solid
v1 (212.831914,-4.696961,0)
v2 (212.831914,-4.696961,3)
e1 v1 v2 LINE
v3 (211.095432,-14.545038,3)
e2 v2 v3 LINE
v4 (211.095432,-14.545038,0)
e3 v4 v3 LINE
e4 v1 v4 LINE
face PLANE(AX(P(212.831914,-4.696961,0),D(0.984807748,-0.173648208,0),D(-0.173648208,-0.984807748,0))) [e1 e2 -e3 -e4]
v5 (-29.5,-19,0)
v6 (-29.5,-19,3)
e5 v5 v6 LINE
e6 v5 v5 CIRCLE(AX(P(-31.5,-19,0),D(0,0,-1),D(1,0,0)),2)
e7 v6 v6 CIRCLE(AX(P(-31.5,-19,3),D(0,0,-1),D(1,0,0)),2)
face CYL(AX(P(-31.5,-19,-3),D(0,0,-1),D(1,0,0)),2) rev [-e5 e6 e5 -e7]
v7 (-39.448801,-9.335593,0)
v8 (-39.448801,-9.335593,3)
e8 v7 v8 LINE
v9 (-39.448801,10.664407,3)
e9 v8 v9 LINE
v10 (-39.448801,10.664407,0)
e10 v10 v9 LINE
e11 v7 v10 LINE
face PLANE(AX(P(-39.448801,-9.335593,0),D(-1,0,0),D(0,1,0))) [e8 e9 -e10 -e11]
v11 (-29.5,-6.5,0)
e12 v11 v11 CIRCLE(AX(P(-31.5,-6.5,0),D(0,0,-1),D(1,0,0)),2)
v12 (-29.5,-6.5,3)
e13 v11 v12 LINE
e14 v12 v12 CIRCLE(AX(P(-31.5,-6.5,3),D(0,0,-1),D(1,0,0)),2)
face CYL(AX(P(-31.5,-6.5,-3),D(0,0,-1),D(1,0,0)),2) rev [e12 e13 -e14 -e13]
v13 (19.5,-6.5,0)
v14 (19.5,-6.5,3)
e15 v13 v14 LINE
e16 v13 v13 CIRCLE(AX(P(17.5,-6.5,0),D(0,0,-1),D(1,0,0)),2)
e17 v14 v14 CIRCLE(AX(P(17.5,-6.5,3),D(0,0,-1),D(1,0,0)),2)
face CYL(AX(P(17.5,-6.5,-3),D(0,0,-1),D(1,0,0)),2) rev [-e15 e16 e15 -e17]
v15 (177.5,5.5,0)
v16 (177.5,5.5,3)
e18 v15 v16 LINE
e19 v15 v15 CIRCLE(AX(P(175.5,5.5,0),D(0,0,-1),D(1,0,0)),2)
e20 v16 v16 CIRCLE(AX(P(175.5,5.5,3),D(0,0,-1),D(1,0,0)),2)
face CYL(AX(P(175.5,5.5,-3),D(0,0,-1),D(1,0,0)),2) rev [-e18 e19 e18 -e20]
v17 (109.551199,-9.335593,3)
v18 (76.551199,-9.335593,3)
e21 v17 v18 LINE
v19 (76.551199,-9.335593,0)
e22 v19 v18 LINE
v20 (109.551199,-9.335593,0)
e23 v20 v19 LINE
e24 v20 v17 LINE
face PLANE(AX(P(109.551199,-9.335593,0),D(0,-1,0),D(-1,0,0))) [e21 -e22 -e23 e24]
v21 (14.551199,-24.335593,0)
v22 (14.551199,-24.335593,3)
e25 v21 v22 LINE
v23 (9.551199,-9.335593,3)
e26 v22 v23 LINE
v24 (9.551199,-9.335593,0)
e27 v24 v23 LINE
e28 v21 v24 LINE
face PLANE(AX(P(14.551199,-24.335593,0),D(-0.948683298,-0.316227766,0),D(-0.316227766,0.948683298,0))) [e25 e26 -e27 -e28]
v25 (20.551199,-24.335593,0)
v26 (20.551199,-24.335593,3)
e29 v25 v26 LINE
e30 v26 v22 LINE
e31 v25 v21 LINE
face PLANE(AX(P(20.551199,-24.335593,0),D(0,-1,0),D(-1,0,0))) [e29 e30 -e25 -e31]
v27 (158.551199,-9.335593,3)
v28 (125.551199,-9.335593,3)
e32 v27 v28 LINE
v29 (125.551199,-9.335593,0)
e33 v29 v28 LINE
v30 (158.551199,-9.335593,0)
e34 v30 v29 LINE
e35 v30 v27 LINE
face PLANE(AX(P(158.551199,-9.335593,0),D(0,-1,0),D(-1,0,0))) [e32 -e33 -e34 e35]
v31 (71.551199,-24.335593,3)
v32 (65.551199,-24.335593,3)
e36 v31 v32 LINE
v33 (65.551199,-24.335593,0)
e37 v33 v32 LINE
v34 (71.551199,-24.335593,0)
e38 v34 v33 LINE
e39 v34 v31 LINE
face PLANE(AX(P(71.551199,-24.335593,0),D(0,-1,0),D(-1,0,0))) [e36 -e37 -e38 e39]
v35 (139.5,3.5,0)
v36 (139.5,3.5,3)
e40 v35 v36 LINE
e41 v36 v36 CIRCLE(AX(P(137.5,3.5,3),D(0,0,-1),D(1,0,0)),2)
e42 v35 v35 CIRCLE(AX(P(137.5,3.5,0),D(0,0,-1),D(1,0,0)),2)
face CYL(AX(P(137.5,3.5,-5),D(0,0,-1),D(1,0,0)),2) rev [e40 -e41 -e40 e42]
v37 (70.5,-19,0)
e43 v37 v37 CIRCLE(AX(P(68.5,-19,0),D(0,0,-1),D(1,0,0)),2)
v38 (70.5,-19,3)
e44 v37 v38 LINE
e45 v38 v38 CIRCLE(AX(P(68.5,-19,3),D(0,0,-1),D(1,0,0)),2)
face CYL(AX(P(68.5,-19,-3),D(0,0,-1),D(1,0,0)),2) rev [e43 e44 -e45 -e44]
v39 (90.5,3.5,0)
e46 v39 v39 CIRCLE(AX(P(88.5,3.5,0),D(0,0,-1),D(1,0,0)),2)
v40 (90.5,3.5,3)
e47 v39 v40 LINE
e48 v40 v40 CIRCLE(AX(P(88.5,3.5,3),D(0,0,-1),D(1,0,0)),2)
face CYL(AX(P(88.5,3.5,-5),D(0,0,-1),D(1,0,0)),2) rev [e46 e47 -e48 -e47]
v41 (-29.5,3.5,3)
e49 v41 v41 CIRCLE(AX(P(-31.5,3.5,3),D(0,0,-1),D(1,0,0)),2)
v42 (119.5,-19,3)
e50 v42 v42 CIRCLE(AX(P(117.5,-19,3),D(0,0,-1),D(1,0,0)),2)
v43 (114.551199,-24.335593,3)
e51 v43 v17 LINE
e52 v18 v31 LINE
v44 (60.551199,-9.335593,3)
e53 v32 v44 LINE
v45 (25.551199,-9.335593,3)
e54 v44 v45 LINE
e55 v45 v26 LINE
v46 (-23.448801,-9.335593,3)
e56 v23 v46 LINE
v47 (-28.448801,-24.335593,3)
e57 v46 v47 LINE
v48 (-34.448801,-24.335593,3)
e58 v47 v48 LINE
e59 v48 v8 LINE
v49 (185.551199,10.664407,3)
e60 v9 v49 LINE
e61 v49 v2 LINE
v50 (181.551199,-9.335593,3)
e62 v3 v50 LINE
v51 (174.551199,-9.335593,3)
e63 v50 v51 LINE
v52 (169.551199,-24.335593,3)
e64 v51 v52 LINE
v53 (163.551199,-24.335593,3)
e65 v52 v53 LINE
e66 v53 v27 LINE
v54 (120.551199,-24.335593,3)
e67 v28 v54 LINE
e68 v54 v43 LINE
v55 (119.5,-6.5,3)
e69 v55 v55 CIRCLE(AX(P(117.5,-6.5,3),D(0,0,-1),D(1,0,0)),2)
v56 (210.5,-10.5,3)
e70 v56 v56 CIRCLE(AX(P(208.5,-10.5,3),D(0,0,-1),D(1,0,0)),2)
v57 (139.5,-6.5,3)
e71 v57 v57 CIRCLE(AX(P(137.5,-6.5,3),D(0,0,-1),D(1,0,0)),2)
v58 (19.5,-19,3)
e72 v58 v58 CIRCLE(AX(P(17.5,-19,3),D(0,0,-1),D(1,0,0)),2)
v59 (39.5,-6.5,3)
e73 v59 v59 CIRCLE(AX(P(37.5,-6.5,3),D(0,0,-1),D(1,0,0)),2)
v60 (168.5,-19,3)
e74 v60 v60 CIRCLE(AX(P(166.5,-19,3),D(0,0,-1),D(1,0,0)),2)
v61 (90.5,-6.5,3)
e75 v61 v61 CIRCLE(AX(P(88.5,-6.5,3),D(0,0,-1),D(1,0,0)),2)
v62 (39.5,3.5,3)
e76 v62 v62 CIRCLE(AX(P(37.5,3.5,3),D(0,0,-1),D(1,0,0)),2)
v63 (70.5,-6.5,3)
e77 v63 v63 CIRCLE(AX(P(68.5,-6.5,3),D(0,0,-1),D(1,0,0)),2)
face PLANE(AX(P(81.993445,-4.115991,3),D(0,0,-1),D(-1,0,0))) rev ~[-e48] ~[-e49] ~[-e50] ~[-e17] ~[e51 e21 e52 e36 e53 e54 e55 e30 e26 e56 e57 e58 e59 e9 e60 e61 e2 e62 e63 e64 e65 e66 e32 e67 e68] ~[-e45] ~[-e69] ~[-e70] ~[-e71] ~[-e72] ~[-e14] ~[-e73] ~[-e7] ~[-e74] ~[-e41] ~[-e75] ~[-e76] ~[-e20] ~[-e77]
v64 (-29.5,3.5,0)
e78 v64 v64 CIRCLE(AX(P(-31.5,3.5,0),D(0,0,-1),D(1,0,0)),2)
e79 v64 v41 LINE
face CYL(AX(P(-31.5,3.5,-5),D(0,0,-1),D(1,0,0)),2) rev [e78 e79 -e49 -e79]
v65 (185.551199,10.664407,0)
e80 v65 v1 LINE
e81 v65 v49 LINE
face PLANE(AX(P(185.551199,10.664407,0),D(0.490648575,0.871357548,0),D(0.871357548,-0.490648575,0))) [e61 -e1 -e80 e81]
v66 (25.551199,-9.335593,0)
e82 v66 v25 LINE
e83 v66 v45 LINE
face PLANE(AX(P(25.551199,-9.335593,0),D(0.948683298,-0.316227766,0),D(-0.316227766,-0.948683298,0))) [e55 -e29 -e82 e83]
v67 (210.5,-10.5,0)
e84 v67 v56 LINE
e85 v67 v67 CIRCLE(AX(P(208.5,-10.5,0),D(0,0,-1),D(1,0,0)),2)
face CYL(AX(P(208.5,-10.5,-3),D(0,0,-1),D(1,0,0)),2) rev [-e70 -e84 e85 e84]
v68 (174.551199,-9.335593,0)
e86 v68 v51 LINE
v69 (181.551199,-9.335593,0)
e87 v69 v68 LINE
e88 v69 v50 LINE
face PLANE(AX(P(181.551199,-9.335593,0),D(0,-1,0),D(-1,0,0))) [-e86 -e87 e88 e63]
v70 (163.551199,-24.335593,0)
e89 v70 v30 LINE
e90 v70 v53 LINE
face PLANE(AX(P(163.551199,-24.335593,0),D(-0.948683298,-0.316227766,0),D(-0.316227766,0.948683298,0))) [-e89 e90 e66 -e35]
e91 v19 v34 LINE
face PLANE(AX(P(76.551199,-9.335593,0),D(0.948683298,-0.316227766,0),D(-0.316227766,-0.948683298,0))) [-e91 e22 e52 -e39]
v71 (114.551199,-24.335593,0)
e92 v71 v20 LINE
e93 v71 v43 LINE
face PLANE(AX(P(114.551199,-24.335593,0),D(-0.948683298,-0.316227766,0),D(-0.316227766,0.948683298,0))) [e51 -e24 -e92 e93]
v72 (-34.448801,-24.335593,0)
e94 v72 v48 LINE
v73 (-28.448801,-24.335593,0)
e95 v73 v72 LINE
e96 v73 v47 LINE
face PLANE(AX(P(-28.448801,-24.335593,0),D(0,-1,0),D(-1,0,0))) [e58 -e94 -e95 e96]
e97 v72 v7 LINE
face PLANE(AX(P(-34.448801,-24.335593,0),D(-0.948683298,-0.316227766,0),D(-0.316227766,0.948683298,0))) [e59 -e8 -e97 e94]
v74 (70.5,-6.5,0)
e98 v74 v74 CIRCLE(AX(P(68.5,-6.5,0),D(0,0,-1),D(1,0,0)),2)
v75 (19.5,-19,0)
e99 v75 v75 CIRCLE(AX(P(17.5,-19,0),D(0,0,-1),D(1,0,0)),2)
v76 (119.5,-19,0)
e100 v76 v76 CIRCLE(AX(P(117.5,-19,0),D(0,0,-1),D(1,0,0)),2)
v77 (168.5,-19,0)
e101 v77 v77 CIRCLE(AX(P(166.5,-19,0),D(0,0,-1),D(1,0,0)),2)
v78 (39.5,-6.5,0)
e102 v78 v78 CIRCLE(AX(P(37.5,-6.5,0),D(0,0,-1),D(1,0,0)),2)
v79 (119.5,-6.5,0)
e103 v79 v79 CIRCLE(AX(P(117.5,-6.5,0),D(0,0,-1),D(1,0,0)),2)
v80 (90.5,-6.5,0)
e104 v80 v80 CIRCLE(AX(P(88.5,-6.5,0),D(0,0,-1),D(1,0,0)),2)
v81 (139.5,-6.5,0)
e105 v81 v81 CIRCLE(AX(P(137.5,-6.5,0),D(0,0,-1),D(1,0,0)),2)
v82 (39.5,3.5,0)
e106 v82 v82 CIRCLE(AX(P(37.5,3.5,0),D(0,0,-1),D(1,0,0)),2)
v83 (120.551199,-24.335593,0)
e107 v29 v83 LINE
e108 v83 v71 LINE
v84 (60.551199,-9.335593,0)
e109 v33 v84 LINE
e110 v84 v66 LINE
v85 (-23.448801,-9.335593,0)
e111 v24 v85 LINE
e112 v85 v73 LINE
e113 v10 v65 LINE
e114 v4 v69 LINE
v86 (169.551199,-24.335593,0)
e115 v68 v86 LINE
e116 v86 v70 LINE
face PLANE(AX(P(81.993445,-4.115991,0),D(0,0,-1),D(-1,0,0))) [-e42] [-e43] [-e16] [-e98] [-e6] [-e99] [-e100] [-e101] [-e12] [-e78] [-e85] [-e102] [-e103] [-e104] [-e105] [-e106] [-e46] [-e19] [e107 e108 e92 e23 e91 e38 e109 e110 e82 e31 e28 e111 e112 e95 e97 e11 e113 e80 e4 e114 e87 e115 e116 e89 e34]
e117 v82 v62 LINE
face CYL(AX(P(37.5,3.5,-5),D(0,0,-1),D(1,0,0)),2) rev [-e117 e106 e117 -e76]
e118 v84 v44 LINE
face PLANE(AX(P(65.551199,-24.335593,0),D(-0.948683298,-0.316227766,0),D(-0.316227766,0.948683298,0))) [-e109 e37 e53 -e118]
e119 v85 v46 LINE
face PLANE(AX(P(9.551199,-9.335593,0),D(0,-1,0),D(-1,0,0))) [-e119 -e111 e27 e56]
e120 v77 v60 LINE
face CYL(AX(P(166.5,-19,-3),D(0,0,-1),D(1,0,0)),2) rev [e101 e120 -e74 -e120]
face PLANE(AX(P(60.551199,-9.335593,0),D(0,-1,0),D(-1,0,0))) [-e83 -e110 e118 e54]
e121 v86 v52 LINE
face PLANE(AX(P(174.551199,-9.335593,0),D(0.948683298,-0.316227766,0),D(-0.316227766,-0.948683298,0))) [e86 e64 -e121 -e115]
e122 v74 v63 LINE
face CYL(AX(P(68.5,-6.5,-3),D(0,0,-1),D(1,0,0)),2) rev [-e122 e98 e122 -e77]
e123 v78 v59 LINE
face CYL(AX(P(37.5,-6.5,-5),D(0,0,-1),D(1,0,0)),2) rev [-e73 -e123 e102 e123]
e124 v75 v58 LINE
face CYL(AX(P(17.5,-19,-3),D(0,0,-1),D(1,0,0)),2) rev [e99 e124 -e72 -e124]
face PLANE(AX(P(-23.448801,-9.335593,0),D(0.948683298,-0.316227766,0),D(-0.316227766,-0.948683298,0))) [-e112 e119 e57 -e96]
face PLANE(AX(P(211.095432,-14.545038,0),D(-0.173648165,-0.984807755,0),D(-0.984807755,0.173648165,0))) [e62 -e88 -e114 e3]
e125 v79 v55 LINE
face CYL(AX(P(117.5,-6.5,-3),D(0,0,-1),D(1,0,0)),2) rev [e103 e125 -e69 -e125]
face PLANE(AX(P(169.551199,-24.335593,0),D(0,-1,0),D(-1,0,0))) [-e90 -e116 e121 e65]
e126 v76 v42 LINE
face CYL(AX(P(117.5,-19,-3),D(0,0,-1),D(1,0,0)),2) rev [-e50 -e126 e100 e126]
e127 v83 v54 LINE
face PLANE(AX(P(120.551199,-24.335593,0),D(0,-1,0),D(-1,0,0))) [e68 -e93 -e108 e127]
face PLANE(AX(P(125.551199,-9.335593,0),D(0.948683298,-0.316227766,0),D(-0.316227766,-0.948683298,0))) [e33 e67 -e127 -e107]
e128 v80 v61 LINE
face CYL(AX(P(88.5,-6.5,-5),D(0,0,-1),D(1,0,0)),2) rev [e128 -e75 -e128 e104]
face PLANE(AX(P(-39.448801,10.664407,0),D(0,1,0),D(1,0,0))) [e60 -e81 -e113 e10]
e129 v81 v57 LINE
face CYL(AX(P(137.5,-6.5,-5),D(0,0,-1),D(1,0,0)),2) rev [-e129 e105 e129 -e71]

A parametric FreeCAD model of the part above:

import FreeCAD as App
import Part
import Sketcher
from FreeCAD import Vector
Q = App.Units.Quantity


def add_polygon(sketch, points):
    """Adds a closed chain of lines whose ends are joined by coincident constraints."""
    first, n = sketch.GeometryCount, len(points)
    for a, b in zip(points, points[1:] + points[:1]):
        sketch.addGeometry(Part.LineSegment(App.Vector(*a, 0), App.Vector(*b, 0)), False)
    for i in range(n):
        sketch.addConstraint(Sketcher.Constraint("Coincident", first + i, 2, first + (i + 1) % n, 1))

doc = App.newDocument("Part")
params = doc.addObject("Spreadsheet::Sheet", "Params")
for row, (alias, value) in enumerate([
    ("sketch1_diameter", "4 mm"),
    ("pad1_length", "10 mm"),
    ("sketch2_diameter", "4 mm"),
    ("pad2_length", "10 mm"),
    ("sketch3_diameter", "4 mm"),
    ("pad3_length", "10 mm"),
    ("sketch4_diameter", "4 mm"),
    ("pad4_length", "10 mm"),
    ("sketch5_diameter", "4 mm"),
    ("pad5_length", "10 mm"),
    ("sketch6_diameter", "4 mm"),
    ("pad6_length", "10 mm"),
    ("sketch7_diameter", "4 mm"),
    ("pad7_length", "10 mm"),
    ("sketch8_diameter", "4 mm"),
    ("pad8_length", "10 mm"),
    ("sketch9_diameter", "4 mm"),
    ("pad9_length", "10 mm"),
    ("sketch10_diameter", "4 mm"),
    ("pad10_length", "10 mm"),
    ("sketch11_diameter", "4 mm"),
    ("pad11_length", "10 mm"),
    ("sketch12_diameter", "4 mm"),
    ("pad12_length", "10 mm"),
    ("sketch13_diameter", "4 mm"),
    ("pad13_length", "10 mm"),
    ("sketch14_diameter", "4 mm"),
    ("pad14_length", "10 mm"),
    ("sketch15_diameter", "4 mm"),
    ("pad15_length", "10 mm"),
    ("sketch16_diameter", "4 mm"),
    ("pad16_length", "10 mm"),
    ("sketch17_diameter", "4 mm"),
    ("pad17_length", "10 mm"),
    ("sketch18_diameter", "4 mm"),
    ("pad18_length", "10 mm"),
    ("sketch19_diameter", "4 mm"),
    ("pad19_length", "10 mm"),
    ("sketch20_width", "225 mm"),
    ("sketch20_width2", "6 mm"),
    ("sketch20_width3", "33 mm"),
    ("sketch20_width4", "35 mm"),
    ("sketch20_width5", "7 mm"),
    ("pad20_length", "3 mm"),
], start=1):
    params.set(f"A{row}", alias)
    params.set(f"B{row}", "=" + value)
    params.setAlias(f"B{row}", alias)

body = doc.addObject("PartDesign::Body", "Body")

# Sketch on XY plane
sketch1 = body.newObject("Sketcher::SketchObject", "Sketch")
sketch1.AttachmentSupport = (doc.getObject("XY_Plane"), [""])
sketch1.MapMode = "FlatFace"
sketch1.AttachmentOffset = App.Placement(Vector(0, 0, -5), App.Rotation())
sketch1.addGeometry(Part.Circle(Vector(37.5, -6.5, 0), Vector(0, 0, 1), 2), False)
sketch1.addConstraint([
    Sketcher.Constraint("Diameter", 0, Q("4 mm")),
    Sketcher.Constraint("DistanceX", -1, 1, 0, 3, Q("37.5 mm")),
    Sketcher.Constraint("DistanceY", 0, 3, -1, 1, Q("6.5 mm")),
])
sketch1.setExpression("Constraints[0]", "Params.sketch1_diameter")
pad1 = body.newObject("PartDesign::Pad", "Pad")
pad1.Profile = sketch1
pad1.setExpression("Length", "Params.pad1_length")
body2 = doc.addObject("PartDesign::Body", "Body001")

# Sketch on XY plane
sketch2 = body2.newObject("Sketcher::SketchObject", "Sketch001")
sketch2.AttachmentSupport = (doc.getObject("XY_Plane001"), [""])
sketch2.MapMode = "FlatFace"
sketch2.AttachmentOffset = App.Placement(Vector(0, 0, -5), App.Rotation())
sketch2.addGeometry(Part.Circle(Vector(88.5, 3.5, 0), Vector(0, 0, 1), 2), False)
sketch2.addConstraint([
    Sketcher.Constraint("Diameter", 0, Q("4 mm")),
    Sketcher.Constraint("DistanceX", -1, 1, 0, 3, Q("88.5 mm")),
    Sketcher.Constraint("DistanceY", -1, 1, 0, 3, Q("3.5 mm")),
])
sketch2.setExpression("Constraints[0]", "Params.sketch2_diameter")
pad2 = body2.newObject("PartDesign::Pad", "Pad001")
pad2.Profile = sketch2
pad2.setExpression("Length", "Params.pad2_length")
body3 = doc.addObject("PartDesign::Body", "Body002")

# Sketch on XY plane
sketch3 = body3.newObject("Sketcher::SketchObject", "Sketch002")
sketch3.AttachmentSupport = (doc.getObject("XY_Plane002"), [""])
sketch3.MapMode = "FlatFace"
sketch3.AttachmentOffset = App.Placement(Vector(0, 0, -5), App.Rotation())
sketch3.addGeometry(Part.Circle(Vector(88.5, -6.5, 0), Vector(0, 0, 1), 2), False)
sketch3.addConstraint([
    Sketcher.Constraint("Diameter", 0, Q("4 mm")),
    Sketcher.Constraint("DistanceX", -1, 1, 0, 3, Q("88.5 mm")),
    Sketcher.Constraint("DistanceY", 0, 3, -1, 1, Q("6.5 mm")),
])
sketch3.setExpression("Constraints[0]", "Params.sketch3_diameter")
pad3 = body3.newObject("PartDesign::Pad", "Pad002")
pad3.Profile = sketch3
pad3.setExpression("Length", "Params.pad3_length")
body4 = doc.addObject("PartDesign::Body", "Body003")

# Sketch on XY plane
sketch4 = body4.newObject("Sketcher::SketchObject", "Sketch003")
sketch4.AttachmentSupport = (doc.getObject("XY_Plane003"), [""])
sketch4.MapMode = "FlatFace"
sketch4.AttachmentOffset = App.Placement(Vector(0, 0, -5), App.Rotation())
sketch4.addGeometry(Part.Circle(Vector(137.5, -6.5, 0), Vector(0, 0, 1), 2), False)
sketch4.addConstraint([
    Sketcher.Constraint("Diameter", 0, Q("4 mm")),
    Sketcher.Constraint("DistanceX", -1, 1, 0, 3, Q("137.5 mm")),
    Sketcher.Constraint("DistanceY", 0, 3, -1, 1, Q("6.5 mm")),
])
sketch4.setExpression("Constraints[0]", "Params.sketch4_diameter")
pad4 = body4.newObject("PartDesign::Pad", "Pad003")
pad4.Profile = sketch4
pad4.setExpression("Length", "Params.pad4_length")
body5 = doc.addObject("PartDesign::Body", "Body004")

# Sketch on XY plane
sketch5 = body5.newObject("Sketcher::SketchObject", "Sketch004")
sketch5.AttachmentSupport = (doc.getObject("XY_Plane004"), [""])
sketch5.MapMode = "FlatFace"
sketch5.AttachmentOffset = App.Placement(Vector(0, 0, -5), App.Rotation())
sketch5.addGeometry(Part.Circle(Vector(137.5, 3.5, 0), Vector(0, 0, 1), 2), False)
sketch5.addConstraint([
    Sketcher.Constraint("Diameter", 0, Q("4 mm")),
    Sketcher.Constraint("DistanceX", -1, 1, 0, 3, Q("137.5 mm")),
    Sketcher.Constraint("DistanceY", -1, 1, 0, 3, Q("3.5 mm")),
])
sketch5.setExpression("Constraints[0]", "Params.sketch5_diameter")
pad5 = body5.newObject("PartDesign::Pad", "Pad004")
pad5.Profile = sketch5
pad5.setExpression("Length", "Params.pad5_length")
body6 = doc.addObject("PartDesign::Body", "Body005")

# Sketch on XY plane
sketch6 = body6.newObject("Sketcher::SketchObject", "Sketch005")
sketch6.AttachmentSupport = (doc.getObject("XY_Plane005"), [""])
sketch6.MapMode = "FlatFace"
sketch6.AttachmentOffset = App.Placement(Vector(0, 0, -5), App.Rotation())
sketch6.addGeometry(Part.Circle(Vector(37.5, 3.5, 0), Vector(0, 0, 1), 2), False)
sketch6.addConstraint([
    Sketcher.Constraint("Diameter", 0, Q("4 mm")),
    Sketcher.Constraint("DistanceX", -1, 1, 0, 3, Q("37.5 mm")),
    Sketcher.Constraint("DistanceY", -1, 1, 0, 3, Q("3.5 mm")),
])
sketch6.setExpression("Constraints[0]", "Params.sketch6_diameter")
pad6 = body6.newObject("PartDesign::Pad", "Pad005")
pad6.Profile = sketch6
pad6.setExpression("Length", "Params.pad6_length")
body7 = doc.addObject("PartDesign::Body", "Body006")

# Sketch on XY plane
sketch7 = body7.newObject("Sketcher::SketchObject", "Sketch006")
sketch7.AttachmentSupport = (doc.getObject("XY_Plane006"), [""])
sketch7.MapMode = "FlatFace"
sketch7.AttachmentOffset = App.Placement(Vector(0, 0, -5), App.Rotation())
sketch7.addGeometry(Part.Circle(Vector(117.5, -6.5, 0), Vector(0, 0, 1), 2), False)
sketch7.addConstraint([
    Sketcher.Constraint("Diameter", 0, Q("4 mm")),
    Sketcher.Constraint("DistanceX", -1, 1, 0, 3, Q("117.5 mm")),
    Sketcher.Constraint("DistanceY", 0, 3, -1, 1, Q("6.5 mm")),
])
sketch7.setExpression("Constraints[0]", "Params.sketch7_diameter")
pad7 = body7.newObject("PartDesign::Pad", "Pad006")
pad7.Profile = sketch7
pad7.setExpression("Length", "Params.pad7_length")
body8 = doc.addObject("PartDesign::Body", "Body007")

# Sketch on XY plane
sketch8 = body8.newObject("Sketcher::SketchObject", "Sketch007")
sketch8.AttachmentSupport = (doc.getObject("XY_Plane007"), [""])
sketch8.MapMode = "FlatFace"
sketch8.AttachmentOffset = App.Placement(Vector(0, 0, -5), App.Rotation())
sketch8.addGeometry(Part.Circle(Vector(-31.5, 3.5, 0), Vector(0, 0, 1), 2), False)
sketch8.addConstraint([
    Sketcher.Constraint("Diameter", 0, Q("4 mm")),
    Sketcher.Constraint("DistanceX", 0, 3, -1, 1, Q("31.5 mm")),
    Sketcher.Constraint("DistanceY", -1, 1, 0, 3, Q("3.5 mm")),
])
sketch8.setExpression("Constraints[0]", "Params.sketch8_diameter")
pad8 = body8.newObject("PartDesign::Pad", "Pad007")
pad8.Profile = sketch8
pad8.setExpression("Length", "Params.pad8_length")
body9 = doc.addObject("PartDesign::Body", "Body008")

# Sketch on XY plane
sketch9 = body9.newObject("Sketcher::SketchObject", "Sketch008")
sketch9.AttachmentSupport = (doc.getObject("XY_Plane008"), [""])
sketch9.MapMode = "FlatFace"
sketch9.AttachmentOffset = App.Placement(Vector(0, 0, -3), App.Rotation())
sketch9.addGeometry(Part.Circle(Vector(117.5, -6.5, 0), Vector(0, 0, 1), 2), False)
sketch9.addConstraint([
    Sketcher.Constraint("Diameter", 0, Q("4 mm")),
    Sketcher.Constraint("DistanceX", -1, 1, 0, 3, Q("117.5 mm")),
    Sketcher.Constraint("DistanceY", 0, 3, -1, 1, Q("6.5 mm")),
])
sketch9.setExpression("Constraints[0]", "Params.sketch9_diameter")
pad9 = body9.newObject("PartDesign::Pad", "Pad008")
pad9.Profile = sketch9
pad9.setExpression("Length", "Params.pad9_length")
body10 = doc.addObject("PartDesign::Body", "Body009")

# Sketch on XY plane
sketch10 = body10.newObject("Sketcher::SketchObject", "Sketch009")
sketch10.AttachmentSupport = (doc.getObject("XY_Plane009"), [""])
sketch10.MapMode = "FlatFace"
sketch10.AttachmentOffset = App.Placement(Vector(0, 0, -3), App.Rotation())
sketch10.addGeometry(Part.Circle(Vector(68.5, -6.5, 0), Vector(0, 0, 1), 2), False)
sketch10.addConstraint([
    Sketcher.Constraint("Diameter", 0, Q("4 mm")),
    Sketcher.Constraint("DistanceX", -1, 1, 0, 3, Q("68.5 mm")),
    Sketcher.Constraint("DistanceY", 0, 3, -1, 1, Q("6.5 mm")),
])
sketch10.setExpression("Constraints[0]", "Params.sketch10_diameter")
pad10 = body10.newObject("PartDesign::Pad", "Pad009")
pad10.Profile = sketch10
pad10.setExpression("Length", "Params.pad10_length")
body11 = doc.addObject("PartDesign::Body", "Body010")

# Sketch on XY plane
sketch11 = body11.newObject("Sketcher::SketchObject", "Sketch010")
sketch11.AttachmentSupport = (doc.getObject("XY_Plane010"), [""])
sketch11.MapMode = "FlatFace"
sketch11.AttachmentOffset = App.Placement(Vector(0, 0, -3), App.Rotation())
sketch11.addGeometry(Part.Circle(Vector(17.5, -6.5, 0), Vector(0, 0, 1), 2), False)
sketch11.addConstraint([
    Sketcher.Constraint("Diameter", 0, Q("4 mm")),
    Sketcher.Constraint("DistanceX", -1, 1, 0, 3, Q("17.5 mm")),
    Sketcher.Constraint("DistanceY", 0, 3, -1, 1, Q("6.5 mm")),
])
sketch11.setExpression("Constraints[0]", "Params.sketch11_diameter")
pad11 = body11.newObject("PartDesign::Pad", "Pad010")
pad11.Profile = sketch11
pad11.setExpression("Length", "Params.pad11_length")
body12 = doc.addObject("PartDesign::Body", "Body011")

# Sketch on XY plane
sketch12 = body12.newObject("Sketcher::SketchObject", "Sketch011")
sketch12.AttachmentSupport = (doc.getObject("XY_Plane011"), [""])
sketch12.MapMode = "FlatFace"
sketch12.AttachmentOffset = App.Placement(Vector(0, 0, -3), App.Rotation())
sketch12.addGeometry(Part.Circle(Vector(-31.5, -6.5, 0), Vector(0, 0, 1), 2), False)
sketch12.addConstraint([
    Sketcher.Constraint("Diameter", 0, Q("4 mm")),
    Sketcher.Constraint("DistanceX", 0, 3, -1, 1, Q("31.5 mm")),
    Sketcher.Constraint("DistanceY", 0, 3, -1, 1, Q("6.5 mm")),
])
sketch12.setExpression("Constraints[0]", "Params.sketch12_diameter")
pad12 = body12.newObject("PartDesign::Pad", "Pad011")
pad12.Profile = sketch12
pad12.setExpression("Length", "Params.pad12_length")
body13 = doc.addObject("PartDesign::Body", "Body012")

# Sketch on XY plane
sketch13 = body13.newObject("Sketcher::SketchObject", "Sketch012")
sketch13.AttachmentSupport = (doc.getObject("XY_Plane012"), [""])
sketch13.MapMode = "FlatFace"
sketch13.AttachmentOffset = App.Placement(Vector(0, 0, -3), App.Rotation())
sketch13.addGeometry(Part.Circle(Vector(175.5, 5.5, 0), Vector(0, 0, 1), 2), False)
sketch13.addConstraint([
    Sketcher.Constraint("Diameter", 0, Q("4 mm")),
    Sketcher.Constraint("DistanceX", -1, 1, 0, 3, Q("175.5 mm")),
    Sketcher.Constraint("DistanceY", -1, 1, 0, 3, Q("5.5 mm")),
])
sketch13.setExpression("Constraints[0]", "Params.sketch13_diameter")
pad13 = body13.newObject("PartDesign::Pad", "Pad012")
pad13.Profile = sketch13
pad13.setExpression("Length", "Params.pad13_length")
body14 = doc.addObject("PartDesign::Body", "Body013")

# Sketch on XY plane
sketch14 = body14.newObject("Sketcher::SketchObject", "Sketch013")
sketch14.AttachmentSupport = (doc.getObject("XY_Plane013"), [""])
sketch14.MapMode = "FlatFace"
sketch14.AttachmentOffset = App.Placement(Vector(0, 0, -3), App.Rotation())
sketch14.addGeometry(Part.Circle(Vector(166.5, -19, 0), Vector(0, 0, 1), 2), False)
sketch14.addConstraint([
    Sketcher.Constraint("Diameter", 0, Q("4 mm")),
    Sketcher.Constraint("DistanceY", 0, 3, -1, 1, Q("19 mm")),
    Sketcher.Constraint("DistanceX", -1, 1, 0, 3, Q("166.5 mm")),
])
sketch14.setExpression("Constraints[0]", "Params.sketch14_diameter")
pad14 = body14.newObject("PartDesign::Pad", "Pad013")
pad14.Profile = sketch14
pad14.setExpression("Length", "Params.pad14_length")
body15 = doc.addObject("PartDesign::Body", "Body014")

# Sketch on XY plane
sketch15 = body15.newObject("Sketcher::SketchObject", "Sketch014")
sketch15.AttachmentSupport = (doc.getObject("XY_Plane014"), [""])
sketch15.MapMode = "FlatFace"
sketch15.AttachmentOffset = App.Placement(Vector(0, 0, -3), App.Rotation())
sketch15.addGeometry(Part.Circle(Vector(208.5, -10.5, 0), Vector(0, 0, 1), 2), False)
sketch15.addConstraint([
    Sketcher.Constraint("Diameter", 0, Q("4 mm")),
    Sketcher.Constraint("DistanceX", -1, 1, 0, 3, Q("208.5 mm")),
    Sketcher.Constraint("DistanceY", 0, 3, -1, 1, Q("10.5 mm")),
])
sketch15.setExpression("Constraints[0]", "Params.sketch15_diameter")
pad15 = body15.newObject("PartDesign::Pad", "Pad014")
pad15.Profile = sketch15
pad15.setExpression("Length", "Params.pad15_length")
body16 = doc.addObject("PartDesign::Body", "Body015")

# Sketch on XY plane
sketch16 = body16.newObject("Sketcher::SketchObject", "Sketch015")
sketch16.AttachmentSupport = (doc.getObject("XY_Plane015"), [""])
sketch16.MapMode = "FlatFace"
sketch16.AttachmentOffset = App.Placement(Vector(0, 0, -3), App.Rotation())
sketch16.addGeometry(Part.Circle(Vector(-31.5, -19, 0), Vector(0, 0, 1), 2), False)
sketch16.addConstraint([
    Sketcher.Constraint("Diameter", 0, Q("4 mm")),
    Sketcher.Constraint("DistanceY", 0, 3, -1, 1, Q("19 mm")),
    Sketcher.Constraint("DistanceX", 0, 3, -1, 1, Q("31.5 mm")),
])
sketch16.setExpression("Constraints[0]", "Params.sketch16_diameter")
pad16 = body16.newObject("PartDesign::Pad", "Pad015")
pad16.Profile = sketch16
pad16.setExpression("Length", "Params.pad16_length")
body17 = doc.addObject("PartDesign::Body", "Body016")

# Sketch on XY plane
sketch17 = body17.newObject("Sketcher::SketchObject", "Sketch016")
sketch17.AttachmentSupport = (doc.getObject("XY_Plane016"), [""])
sketch17.MapMode = "FlatFace"
sketch17.AttachmentOffset = App.Placement(Vector(0, 0, -3), App.Rotation())
sketch17.addGeometry(Part.Circle(Vector(68.5, -19, 0), Vector(0, 0, 1), 2), False)
sketch17.addConstraint([
    Sketcher.Constraint("Diameter", 0, Q("4 mm")),
    Sketcher.Constraint("DistanceY", 0, 3, -1, 1, Q("19 mm")),
    Sketcher.Constraint("DistanceX", -1, 1, 0, 3, Q("68.5 mm")),
])
sketch17.setExpression("Constraints[0]", "Params.sketch17_diameter")
pad17 = body17.newObject("PartDesign::Pad", "Pad016")
pad17.Profile = sketch17
pad17.setExpression("Length", "Params.pad17_length")
body18 = doc.addObject("PartDesign::Body", "Body017")

# Sketch on XY plane
sketch18 = body18.newObject("Sketcher::SketchObject", "Sketch017")
sketch18.AttachmentSupport = (doc.getObject("XY_Plane017"), [""])
sketch18.MapMode = "FlatFace"
sketch18.AttachmentOffset = App.Placement(Vector(0, 0, -3), App.Rotation())
sketch18.addGeometry(Part.Circle(Vector(117.5, -19, 0), Vector(0, 0, 1), 2), False)
sketch18.addConstraint([
    Sketcher.Constraint("Diameter", 0, Q("4 mm")),
    Sketcher.Constraint("DistanceY", 0, 3, -1, 1, Q("19 mm")),
    Sketcher.Constraint("DistanceX", -1, 1, 0, 3, Q("117.5 mm")),
])
sketch18.setExpression("Constraints[0]", "Params.sketch18_diameter")
pad18 = body18.newObject("PartDesign::Pad", "Pad017")
pad18.Profile = sketch18
pad18.setExpression("Length", "Params.pad18_length")
body19 = doc.addObject("PartDesign::Body", "Body018")

# Sketch on XY plane
sketch19 = body19.newObject("Sketcher::SketchObject", "Sketch018")
sketch19.AttachmentSupport = (doc.getObject("XY_Plane018"), [""])
sketch19.MapMode = "FlatFace"
sketch19.AttachmentOffset = App.Placement(Vector(0, 0, -3), App.Rotation())
sketch19.addGeometry(Part.Circle(Vector(17.5, -19, 0), Vector(0, 0, 1), 2), False)
sketch19.addConstraint([
    Sketcher.Constraint("Diameter", 0, Q("4 mm")),
    Sketcher.Constraint("DistanceY", 0, 3, -1, 1, Q("19 mm")),
    Sketcher.Constraint("DistanceX", -1, 1, 0, 3, Q("17.5 mm")),
])
sketch19.setExpression("Constraints[0]", "Params.sketch19_diameter")
pad19 = body19.newObject("PartDesign::Pad", "Pad018")
pad19.Profile = sketch19
pad19.setExpression("Length", "Params.pad19_length")
body20 = doc.addObject("PartDesign::Body", "Body019")

# Sketch on XY plane
sketch20 = body20.newObject("Sketcher::SketchObject", "Sketch019")
sketch20.AttachmentSupport = (doc.getObject("XY_Plane019"), [""])
sketch20.MapMode = "FlatFace"
add_polygon(sketch20, [(182, 8), (-43, 8), (-43, -12), (-38, -27), (-32, -27), (-27, -12), (6, -12), (11, -27), (17, -27), (22, -12), (57, -12), (62, -27), (68, -27), (73, -12), (106, -12), (111, -27), (117, -27), (122, -12), (155, -12), (160, -27), (166, -27), (171, -12), (178, -12), (207, -18), (209, -8)])  # lines 0-24
sketch20.addConstraint([
    Sketcher.Constraint("Horizontal", 0),
    Sketcher.Constraint("Vertical", 1),
    Sketcher.Constraint("Horizontal", 3),
    Sketcher.Constraint("Horizontal", 5),
    Sketcher.Constraint("Horizontal", 7),
    Sketcher.Constraint("Horizontal", 9),
    Sketcher.Constraint("Horizontal", 11),
    Sketcher.Constraint("Horizontal", 13),
    Sketcher.Constraint("Horizontal", 15),
    Sketcher.Constraint("Horizontal", 17),
    Sketcher.Constraint("Horizontal", 19),
    Sketcher.Constraint("Horizontal", 21),
    Sketcher.Constraint("Parallel", 2, 6),
    Sketcher.Constraint("Parallel", 4, 8),
    Sketcher.Constraint("Parallel", 6, 10),
    Sketcher.Constraint("Parallel", 8, 12),
    Sketcher.Constraint("Parallel", 10, 14),
    Sketcher.Constraint("Parallel", 12, 16),
    Sketcher.Constraint("Parallel", 14, 18),
    Sketcher.Constraint("Parallel", 16, 20),
    Sketcher.Constraint("Perpendicular", 22, 23),
    Sketcher.Constraint("Horizontal", 1, 2, 4, 2),
    Sketcher.Constraint("Horizontal", 3, 2, 6, 2),
    Sketcher.Constraint("Horizontal", 5, 2, 8, 2),
    Sketcher.Constraint("Horizontal", 7, 2, 10, 2),
    Sketcher.Constraint("Horizontal", 9, 2, 12, 2),
    Sketcher.Constraint("Horizontal", 11, 2, 14, 2),
    Sketcher.Constraint("Horizontal", 13, 2, 16, 2),
    Sketcher.Constraint("Horizontal", 15, 2, 18, 2),
    Sketcher.Constraint("Horizontal", 17, 2, 20, 2),
    Sketcher.Constraint("Equal", 3, 7),
    Sketcher.Constraint("Equal", 7, 11),
    Sketcher.Constraint("Equal", 5, 13),
    Sketcher.Constraint("Equal", 11, 15),
    Sketcher.Constraint("Equal", 13, 17),
    Sketcher.Constraint("Equal", 15, 19),
    Sketcher.Constraint("Equal", 2, 4),
    Sketcher.Constraint("DistanceX", 0, 2, 0, 1, Q("225 mm")),
    Sketcher.Constraint("DistanceX", 3, 1, 3, 2, Q("6 mm")),
    Sketcher.Constraint("DistanceX", 5, 1, 5, 2, Q("33 mm")),
    Sketcher.Constraint("DistanceX", 9, 1, 9, 2, Q("35 mm")),
    Sketcher.Constraint("DistanceX", 21, 1, 21, 2, Q("7 mm")),
    Sketcher.Constraint("DistanceY", 1, 2, 1, 1, Q("20 mm")),
    Sketcher.Constraint("Angle", 22, Q("-9.999999 deg")),
    Sketcher.Constraint("Distance", 22, Q("30 mm")),
    Sketcher.Constraint("Distance", 23, Q("10 mm")),
    Sketcher.Constraint("DistanceX", 1, 2, 2, 2, Q("5 mm")),
    Sketcher.Constraint("DistanceY", 2, 2, 1, 2, Q("15 mm")),
    Sketcher.Constraint("DistanceX", 0, 2, -1, 1, Q("43.448801 mm")),
    Sketcher.Constraint("DistanceY", 22, 2, -1, 1, Q("17.545038 mm")),
])
sketch20.setExpression("Constraints[62]", "Params.sketch20_width")
sketch20.setExpression("Constraints[63]", "Params.sketch20_width2")
sketch20.setExpression("Constraints[64]", "Params.sketch20_width3")
sketch20.setExpression("Constraints[65]", "Params.sketch20_width4")
sketch20.setExpression("Constraints[66]", "Params.sketch20_width5")
pad20 = body20.newObject("PartDesign::Pad", "Pad019")
pad20.Profile = sketch20
pad20.setExpression("Length", "Params.pad20_length")
body21 = doc.addObject("PartDesign::Body", "Body020")
doc.recompute()

body20.Placement = App.Placement(Vector(4, 3, 0), App.Rotation(Vector(0, 0, 1), 0))
boolean = body21.newObject("PartDesign::Boolean", "Boolean")
boolean.Type = "Fuse"
boolean.addObjects([body20])
doc.recompute()

boolean2 = body21.newObject("PartDesign::Boolean", "Boolean001")
boolean2.Type = "Cut"
boolean2.addObjects([body19])
doc.recompute()

boolean3 = body21.newObject("PartDesign::Boolean", "Boolean002")
boolean3.Type = "Cut"
boolean3.addObjects([body18])
doc.recompute()

boolean4 = body21.newObject("PartDesign::Boolean", "Boolean003")
boolean4.Type = "Cut"
boolean4.addObjects([body17])
doc.recompute()

boolean5 = body21.newObject("PartDesign::Boolean", "Boolean004")
boolean5.Type = "Cut"
boolean5.addObjects([body16])
doc.recompute()

boolean6 = body21.newObject("PartDesign::Boolean", "Boolean005")
boolean6.Type = "Cut"
boolean6.addObjects([body15])
doc.recompute()

boolean7 = body21.newObject("PartDesign::Boolean", "Boolean006")
boolean7.Type = "Cut"
boolean7.addObjects([body14])
doc.recompute()

boolean8 = body21.newObject("PartDesign::Boolean", "Boolean007")
boolean8.Type = "Cut"
boolean8.addObjects([body13])
doc.recompute()

boolean9 = body21.newObject("PartDesign::Boolean", "Boolean008")
boolean9.Type = "Cut"
boolean9.addObjects([body12])
doc.recompute()

boolean10 = body21.newObject("PartDesign::Boolean", "Boolean009")
boolean10.Type = "Cut"
boolean10.addObjects([body11])
doc.recompute()

boolean11 = body21.newObject("PartDesign::Boolean", "Boolean010")
boolean11.Type = "Cut"
boolean11.addObjects([body10])
doc.recompute()

boolean12 = body21.newObject("PartDesign::Boolean", "Boolean011")
boolean12.Type = "Cut"
boolean12.addObjects([body9])
doc.recompute()

boolean13 = body21.newObject("PartDesign::Boolean", "Boolean012")
boolean13.Type = "Cut"
boolean13.addObjects([body8])
doc.recompute()

boolean14 = body21.newObject("PartDesign::Boolean", "Boolean013")
boolean14.Type = "Cut"
boolean14.addObjects([body7])
doc.recompute()

boolean15 = body21.newObject("PartDesign::Boolean", "Boolean014")
boolean15.Type = "Cut"
boolean15.addObjects([body6])
doc.recompute()

boolean16 = body21.newObject("PartDesign::Boolean", "Boolean015")
boolean16.Type = "Cut"
boolean16.addObjects([body5])
doc.recompute()

boolean17 = body21.newObject("PartDesign::Boolean", "Boolean016")
boolean17.Type = "Cut"
boolean17.addObjects([body4])
doc.recompute()

boolean18 = body21.newObject("PartDesign::Boolean", "Boolean017")
boolean18.Type = "Cut"
boolean18.addObjects([body3])
doc.recompute()

boolean19 = body21.newObject("PartDesign::Boolean", "Boolean018")
boolean19.Type = "Cut"
boolean19.addObjects([body2])
doc.recompute()

boolean20 = body21.newObject("PartDesign::Boolean", "Boolean019")
boolean20.Type = "Cut"
boolean20.addObjects([body])

doc.recompute()
